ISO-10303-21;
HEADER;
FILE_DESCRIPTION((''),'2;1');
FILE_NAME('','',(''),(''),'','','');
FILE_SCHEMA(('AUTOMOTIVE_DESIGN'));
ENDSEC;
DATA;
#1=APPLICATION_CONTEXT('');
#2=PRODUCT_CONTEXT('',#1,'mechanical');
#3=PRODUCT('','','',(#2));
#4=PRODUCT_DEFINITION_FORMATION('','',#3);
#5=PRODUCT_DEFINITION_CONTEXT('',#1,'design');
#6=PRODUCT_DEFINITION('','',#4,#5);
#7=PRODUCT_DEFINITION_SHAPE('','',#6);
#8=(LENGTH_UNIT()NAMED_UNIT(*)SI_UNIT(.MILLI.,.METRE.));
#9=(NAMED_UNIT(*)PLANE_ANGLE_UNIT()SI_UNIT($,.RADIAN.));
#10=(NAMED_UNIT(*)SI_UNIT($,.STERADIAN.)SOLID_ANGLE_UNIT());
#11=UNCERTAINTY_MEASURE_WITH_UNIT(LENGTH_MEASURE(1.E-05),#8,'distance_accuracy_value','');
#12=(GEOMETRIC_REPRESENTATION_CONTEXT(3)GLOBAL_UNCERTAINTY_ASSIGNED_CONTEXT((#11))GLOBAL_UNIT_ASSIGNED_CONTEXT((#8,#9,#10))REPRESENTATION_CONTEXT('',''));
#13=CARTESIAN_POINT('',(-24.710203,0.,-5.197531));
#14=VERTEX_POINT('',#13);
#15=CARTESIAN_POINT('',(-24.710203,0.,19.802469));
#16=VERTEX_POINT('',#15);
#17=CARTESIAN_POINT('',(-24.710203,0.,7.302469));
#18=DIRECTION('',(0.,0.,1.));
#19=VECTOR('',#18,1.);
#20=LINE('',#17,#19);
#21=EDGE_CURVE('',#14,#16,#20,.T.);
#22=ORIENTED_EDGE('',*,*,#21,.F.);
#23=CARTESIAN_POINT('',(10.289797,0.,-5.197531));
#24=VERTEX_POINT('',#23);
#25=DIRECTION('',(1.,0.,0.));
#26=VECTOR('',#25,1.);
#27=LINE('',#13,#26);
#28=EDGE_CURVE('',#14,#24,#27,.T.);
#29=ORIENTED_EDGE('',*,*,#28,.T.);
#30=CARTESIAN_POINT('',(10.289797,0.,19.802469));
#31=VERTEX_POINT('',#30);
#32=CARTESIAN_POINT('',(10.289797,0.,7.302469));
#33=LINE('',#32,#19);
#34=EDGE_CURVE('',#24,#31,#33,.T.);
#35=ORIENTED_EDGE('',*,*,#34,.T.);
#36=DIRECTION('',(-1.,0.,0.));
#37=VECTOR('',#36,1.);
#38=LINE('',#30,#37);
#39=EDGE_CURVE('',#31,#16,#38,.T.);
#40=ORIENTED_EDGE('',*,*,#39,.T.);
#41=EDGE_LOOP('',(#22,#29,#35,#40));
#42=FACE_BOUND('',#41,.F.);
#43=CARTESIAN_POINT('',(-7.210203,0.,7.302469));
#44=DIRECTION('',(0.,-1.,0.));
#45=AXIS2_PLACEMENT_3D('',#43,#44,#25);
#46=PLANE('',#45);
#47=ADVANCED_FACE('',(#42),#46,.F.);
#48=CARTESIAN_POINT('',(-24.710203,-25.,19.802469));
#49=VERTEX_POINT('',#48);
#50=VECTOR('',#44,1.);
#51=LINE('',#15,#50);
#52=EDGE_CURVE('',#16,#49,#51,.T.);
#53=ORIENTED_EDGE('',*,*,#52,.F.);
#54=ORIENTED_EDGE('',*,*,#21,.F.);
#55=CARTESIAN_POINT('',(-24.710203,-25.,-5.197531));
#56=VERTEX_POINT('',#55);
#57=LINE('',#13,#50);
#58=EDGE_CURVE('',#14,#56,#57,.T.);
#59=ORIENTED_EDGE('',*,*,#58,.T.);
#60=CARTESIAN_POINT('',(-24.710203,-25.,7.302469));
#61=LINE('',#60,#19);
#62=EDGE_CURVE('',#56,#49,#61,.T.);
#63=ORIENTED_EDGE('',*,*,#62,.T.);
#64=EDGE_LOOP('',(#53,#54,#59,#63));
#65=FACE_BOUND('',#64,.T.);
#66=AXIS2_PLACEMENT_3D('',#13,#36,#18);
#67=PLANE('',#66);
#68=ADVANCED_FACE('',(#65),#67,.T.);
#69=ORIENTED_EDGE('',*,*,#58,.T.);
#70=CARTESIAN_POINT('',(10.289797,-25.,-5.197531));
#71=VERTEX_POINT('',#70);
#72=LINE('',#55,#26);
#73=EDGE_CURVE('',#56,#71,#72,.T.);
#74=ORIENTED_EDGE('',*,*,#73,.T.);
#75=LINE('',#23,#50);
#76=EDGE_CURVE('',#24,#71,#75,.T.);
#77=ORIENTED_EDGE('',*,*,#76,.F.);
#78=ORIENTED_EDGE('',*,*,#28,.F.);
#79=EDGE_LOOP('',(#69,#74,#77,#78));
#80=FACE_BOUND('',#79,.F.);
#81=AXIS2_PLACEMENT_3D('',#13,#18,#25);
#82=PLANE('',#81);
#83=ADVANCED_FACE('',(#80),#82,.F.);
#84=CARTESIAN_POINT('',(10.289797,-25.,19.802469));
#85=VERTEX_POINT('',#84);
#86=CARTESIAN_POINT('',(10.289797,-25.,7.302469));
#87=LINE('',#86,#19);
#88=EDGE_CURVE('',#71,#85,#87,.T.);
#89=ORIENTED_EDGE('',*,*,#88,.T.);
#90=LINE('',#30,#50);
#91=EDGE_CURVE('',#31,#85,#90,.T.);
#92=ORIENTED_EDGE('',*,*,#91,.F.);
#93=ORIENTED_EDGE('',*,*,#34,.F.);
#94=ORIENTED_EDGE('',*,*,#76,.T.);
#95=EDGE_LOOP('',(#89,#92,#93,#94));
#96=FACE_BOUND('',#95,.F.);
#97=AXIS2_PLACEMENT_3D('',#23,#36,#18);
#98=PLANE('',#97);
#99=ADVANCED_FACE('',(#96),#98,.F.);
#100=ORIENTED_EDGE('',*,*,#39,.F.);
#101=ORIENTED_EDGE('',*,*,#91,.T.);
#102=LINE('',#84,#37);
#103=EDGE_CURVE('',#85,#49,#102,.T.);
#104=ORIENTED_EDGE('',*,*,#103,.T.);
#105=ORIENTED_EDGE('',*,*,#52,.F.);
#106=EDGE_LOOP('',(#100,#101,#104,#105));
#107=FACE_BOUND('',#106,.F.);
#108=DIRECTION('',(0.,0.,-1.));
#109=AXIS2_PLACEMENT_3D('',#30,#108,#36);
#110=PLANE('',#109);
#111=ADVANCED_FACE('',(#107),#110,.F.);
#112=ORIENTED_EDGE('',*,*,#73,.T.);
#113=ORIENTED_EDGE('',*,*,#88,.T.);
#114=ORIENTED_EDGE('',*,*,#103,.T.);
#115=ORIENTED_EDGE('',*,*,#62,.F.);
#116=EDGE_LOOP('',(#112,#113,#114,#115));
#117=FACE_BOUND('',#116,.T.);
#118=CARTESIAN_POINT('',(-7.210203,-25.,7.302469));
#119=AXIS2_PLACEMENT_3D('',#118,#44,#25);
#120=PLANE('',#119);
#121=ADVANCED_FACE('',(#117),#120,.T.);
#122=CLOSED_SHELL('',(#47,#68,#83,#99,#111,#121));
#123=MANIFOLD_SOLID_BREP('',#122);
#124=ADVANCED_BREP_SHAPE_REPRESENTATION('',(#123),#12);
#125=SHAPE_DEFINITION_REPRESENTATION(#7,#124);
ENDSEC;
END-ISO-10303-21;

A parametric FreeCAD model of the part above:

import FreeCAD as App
import Part
import Sketcher
from FreeCAD import Vector
Q = App.Units.Quantity

doc = App.newDocument("Part")
body = doc.addObject("PartDesign::Body", "Body")

# Sketch on XZ plane
sketch1 = body.newObject("Sketcher::SketchObject", "Sketch")
sketch1.AttachmentSupport = (doc.getObject("XZ_Plane"), [""])
sketch1.MapMode = "FlatFace"
sketch1.addGeometry(Part.LineSegment(Vector(-25, 20, 0), Vector(-25, -5, 0)), False)
sketch1.addGeometry(Part.LineSegment(Vector(-25, -5, 0), Vector(10, -5, 0)), False)
sketch1.addGeometry(Part.LineSegment(Vector(10, -5, 0), Vector(10, 20, 0)), False)
sketch1.addGeometry(Part.LineSegment(Vector(10, 20, 0), Vector(-25, 20, 0)), False)
sketch1.addConstraint(Sketcher.Constraint("Coincident", 0, 2, 1, 1))
sketch1.addConstraint(Sketcher.Constraint("Coincident", 1, 2, 2, 1))
sketch1.addConstraint(Sketcher.Constraint("Coincident", 2, 2, 3, 1))
sketch1.addConstraint(Sketcher.Constraint("Coincident", 3, 2, 0, 1))
sketch1.addConstraint(Sketcher.Constraint("Vertical", 0))
sketch1.addConstraint(Sketcher.Constraint("Horizontal", 1))
sketch1.addConstraint(Sketcher.Constraint("Vertical", 2))
sketch1.addConstraint(Sketcher.Constraint("Horizontal", 3))
sketch1.addConstraint(Sketcher.Constraint("DistanceX", 1, 1, 1, 2, Q("35 mm")))
sketch1.addConstraint(Sketcher.Constraint("DistanceY", 0, 2, 0, 1, Q("25 mm")))
sketch1.addConstraint(Sketcher.Constraint("DistanceY", 0, 2, -1, 1, Q("5.197531 mm")))
sketch1.addConstraint(Sketcher.Constraint("DistanceX", 0, 2, -1, 1, Q("24.710203 mm")))
pad1 = body.newObject("PartDesign::Pad", "Pad")
pad1.Profile = sketch1
pad1.Length = 25

doc.recompute()
